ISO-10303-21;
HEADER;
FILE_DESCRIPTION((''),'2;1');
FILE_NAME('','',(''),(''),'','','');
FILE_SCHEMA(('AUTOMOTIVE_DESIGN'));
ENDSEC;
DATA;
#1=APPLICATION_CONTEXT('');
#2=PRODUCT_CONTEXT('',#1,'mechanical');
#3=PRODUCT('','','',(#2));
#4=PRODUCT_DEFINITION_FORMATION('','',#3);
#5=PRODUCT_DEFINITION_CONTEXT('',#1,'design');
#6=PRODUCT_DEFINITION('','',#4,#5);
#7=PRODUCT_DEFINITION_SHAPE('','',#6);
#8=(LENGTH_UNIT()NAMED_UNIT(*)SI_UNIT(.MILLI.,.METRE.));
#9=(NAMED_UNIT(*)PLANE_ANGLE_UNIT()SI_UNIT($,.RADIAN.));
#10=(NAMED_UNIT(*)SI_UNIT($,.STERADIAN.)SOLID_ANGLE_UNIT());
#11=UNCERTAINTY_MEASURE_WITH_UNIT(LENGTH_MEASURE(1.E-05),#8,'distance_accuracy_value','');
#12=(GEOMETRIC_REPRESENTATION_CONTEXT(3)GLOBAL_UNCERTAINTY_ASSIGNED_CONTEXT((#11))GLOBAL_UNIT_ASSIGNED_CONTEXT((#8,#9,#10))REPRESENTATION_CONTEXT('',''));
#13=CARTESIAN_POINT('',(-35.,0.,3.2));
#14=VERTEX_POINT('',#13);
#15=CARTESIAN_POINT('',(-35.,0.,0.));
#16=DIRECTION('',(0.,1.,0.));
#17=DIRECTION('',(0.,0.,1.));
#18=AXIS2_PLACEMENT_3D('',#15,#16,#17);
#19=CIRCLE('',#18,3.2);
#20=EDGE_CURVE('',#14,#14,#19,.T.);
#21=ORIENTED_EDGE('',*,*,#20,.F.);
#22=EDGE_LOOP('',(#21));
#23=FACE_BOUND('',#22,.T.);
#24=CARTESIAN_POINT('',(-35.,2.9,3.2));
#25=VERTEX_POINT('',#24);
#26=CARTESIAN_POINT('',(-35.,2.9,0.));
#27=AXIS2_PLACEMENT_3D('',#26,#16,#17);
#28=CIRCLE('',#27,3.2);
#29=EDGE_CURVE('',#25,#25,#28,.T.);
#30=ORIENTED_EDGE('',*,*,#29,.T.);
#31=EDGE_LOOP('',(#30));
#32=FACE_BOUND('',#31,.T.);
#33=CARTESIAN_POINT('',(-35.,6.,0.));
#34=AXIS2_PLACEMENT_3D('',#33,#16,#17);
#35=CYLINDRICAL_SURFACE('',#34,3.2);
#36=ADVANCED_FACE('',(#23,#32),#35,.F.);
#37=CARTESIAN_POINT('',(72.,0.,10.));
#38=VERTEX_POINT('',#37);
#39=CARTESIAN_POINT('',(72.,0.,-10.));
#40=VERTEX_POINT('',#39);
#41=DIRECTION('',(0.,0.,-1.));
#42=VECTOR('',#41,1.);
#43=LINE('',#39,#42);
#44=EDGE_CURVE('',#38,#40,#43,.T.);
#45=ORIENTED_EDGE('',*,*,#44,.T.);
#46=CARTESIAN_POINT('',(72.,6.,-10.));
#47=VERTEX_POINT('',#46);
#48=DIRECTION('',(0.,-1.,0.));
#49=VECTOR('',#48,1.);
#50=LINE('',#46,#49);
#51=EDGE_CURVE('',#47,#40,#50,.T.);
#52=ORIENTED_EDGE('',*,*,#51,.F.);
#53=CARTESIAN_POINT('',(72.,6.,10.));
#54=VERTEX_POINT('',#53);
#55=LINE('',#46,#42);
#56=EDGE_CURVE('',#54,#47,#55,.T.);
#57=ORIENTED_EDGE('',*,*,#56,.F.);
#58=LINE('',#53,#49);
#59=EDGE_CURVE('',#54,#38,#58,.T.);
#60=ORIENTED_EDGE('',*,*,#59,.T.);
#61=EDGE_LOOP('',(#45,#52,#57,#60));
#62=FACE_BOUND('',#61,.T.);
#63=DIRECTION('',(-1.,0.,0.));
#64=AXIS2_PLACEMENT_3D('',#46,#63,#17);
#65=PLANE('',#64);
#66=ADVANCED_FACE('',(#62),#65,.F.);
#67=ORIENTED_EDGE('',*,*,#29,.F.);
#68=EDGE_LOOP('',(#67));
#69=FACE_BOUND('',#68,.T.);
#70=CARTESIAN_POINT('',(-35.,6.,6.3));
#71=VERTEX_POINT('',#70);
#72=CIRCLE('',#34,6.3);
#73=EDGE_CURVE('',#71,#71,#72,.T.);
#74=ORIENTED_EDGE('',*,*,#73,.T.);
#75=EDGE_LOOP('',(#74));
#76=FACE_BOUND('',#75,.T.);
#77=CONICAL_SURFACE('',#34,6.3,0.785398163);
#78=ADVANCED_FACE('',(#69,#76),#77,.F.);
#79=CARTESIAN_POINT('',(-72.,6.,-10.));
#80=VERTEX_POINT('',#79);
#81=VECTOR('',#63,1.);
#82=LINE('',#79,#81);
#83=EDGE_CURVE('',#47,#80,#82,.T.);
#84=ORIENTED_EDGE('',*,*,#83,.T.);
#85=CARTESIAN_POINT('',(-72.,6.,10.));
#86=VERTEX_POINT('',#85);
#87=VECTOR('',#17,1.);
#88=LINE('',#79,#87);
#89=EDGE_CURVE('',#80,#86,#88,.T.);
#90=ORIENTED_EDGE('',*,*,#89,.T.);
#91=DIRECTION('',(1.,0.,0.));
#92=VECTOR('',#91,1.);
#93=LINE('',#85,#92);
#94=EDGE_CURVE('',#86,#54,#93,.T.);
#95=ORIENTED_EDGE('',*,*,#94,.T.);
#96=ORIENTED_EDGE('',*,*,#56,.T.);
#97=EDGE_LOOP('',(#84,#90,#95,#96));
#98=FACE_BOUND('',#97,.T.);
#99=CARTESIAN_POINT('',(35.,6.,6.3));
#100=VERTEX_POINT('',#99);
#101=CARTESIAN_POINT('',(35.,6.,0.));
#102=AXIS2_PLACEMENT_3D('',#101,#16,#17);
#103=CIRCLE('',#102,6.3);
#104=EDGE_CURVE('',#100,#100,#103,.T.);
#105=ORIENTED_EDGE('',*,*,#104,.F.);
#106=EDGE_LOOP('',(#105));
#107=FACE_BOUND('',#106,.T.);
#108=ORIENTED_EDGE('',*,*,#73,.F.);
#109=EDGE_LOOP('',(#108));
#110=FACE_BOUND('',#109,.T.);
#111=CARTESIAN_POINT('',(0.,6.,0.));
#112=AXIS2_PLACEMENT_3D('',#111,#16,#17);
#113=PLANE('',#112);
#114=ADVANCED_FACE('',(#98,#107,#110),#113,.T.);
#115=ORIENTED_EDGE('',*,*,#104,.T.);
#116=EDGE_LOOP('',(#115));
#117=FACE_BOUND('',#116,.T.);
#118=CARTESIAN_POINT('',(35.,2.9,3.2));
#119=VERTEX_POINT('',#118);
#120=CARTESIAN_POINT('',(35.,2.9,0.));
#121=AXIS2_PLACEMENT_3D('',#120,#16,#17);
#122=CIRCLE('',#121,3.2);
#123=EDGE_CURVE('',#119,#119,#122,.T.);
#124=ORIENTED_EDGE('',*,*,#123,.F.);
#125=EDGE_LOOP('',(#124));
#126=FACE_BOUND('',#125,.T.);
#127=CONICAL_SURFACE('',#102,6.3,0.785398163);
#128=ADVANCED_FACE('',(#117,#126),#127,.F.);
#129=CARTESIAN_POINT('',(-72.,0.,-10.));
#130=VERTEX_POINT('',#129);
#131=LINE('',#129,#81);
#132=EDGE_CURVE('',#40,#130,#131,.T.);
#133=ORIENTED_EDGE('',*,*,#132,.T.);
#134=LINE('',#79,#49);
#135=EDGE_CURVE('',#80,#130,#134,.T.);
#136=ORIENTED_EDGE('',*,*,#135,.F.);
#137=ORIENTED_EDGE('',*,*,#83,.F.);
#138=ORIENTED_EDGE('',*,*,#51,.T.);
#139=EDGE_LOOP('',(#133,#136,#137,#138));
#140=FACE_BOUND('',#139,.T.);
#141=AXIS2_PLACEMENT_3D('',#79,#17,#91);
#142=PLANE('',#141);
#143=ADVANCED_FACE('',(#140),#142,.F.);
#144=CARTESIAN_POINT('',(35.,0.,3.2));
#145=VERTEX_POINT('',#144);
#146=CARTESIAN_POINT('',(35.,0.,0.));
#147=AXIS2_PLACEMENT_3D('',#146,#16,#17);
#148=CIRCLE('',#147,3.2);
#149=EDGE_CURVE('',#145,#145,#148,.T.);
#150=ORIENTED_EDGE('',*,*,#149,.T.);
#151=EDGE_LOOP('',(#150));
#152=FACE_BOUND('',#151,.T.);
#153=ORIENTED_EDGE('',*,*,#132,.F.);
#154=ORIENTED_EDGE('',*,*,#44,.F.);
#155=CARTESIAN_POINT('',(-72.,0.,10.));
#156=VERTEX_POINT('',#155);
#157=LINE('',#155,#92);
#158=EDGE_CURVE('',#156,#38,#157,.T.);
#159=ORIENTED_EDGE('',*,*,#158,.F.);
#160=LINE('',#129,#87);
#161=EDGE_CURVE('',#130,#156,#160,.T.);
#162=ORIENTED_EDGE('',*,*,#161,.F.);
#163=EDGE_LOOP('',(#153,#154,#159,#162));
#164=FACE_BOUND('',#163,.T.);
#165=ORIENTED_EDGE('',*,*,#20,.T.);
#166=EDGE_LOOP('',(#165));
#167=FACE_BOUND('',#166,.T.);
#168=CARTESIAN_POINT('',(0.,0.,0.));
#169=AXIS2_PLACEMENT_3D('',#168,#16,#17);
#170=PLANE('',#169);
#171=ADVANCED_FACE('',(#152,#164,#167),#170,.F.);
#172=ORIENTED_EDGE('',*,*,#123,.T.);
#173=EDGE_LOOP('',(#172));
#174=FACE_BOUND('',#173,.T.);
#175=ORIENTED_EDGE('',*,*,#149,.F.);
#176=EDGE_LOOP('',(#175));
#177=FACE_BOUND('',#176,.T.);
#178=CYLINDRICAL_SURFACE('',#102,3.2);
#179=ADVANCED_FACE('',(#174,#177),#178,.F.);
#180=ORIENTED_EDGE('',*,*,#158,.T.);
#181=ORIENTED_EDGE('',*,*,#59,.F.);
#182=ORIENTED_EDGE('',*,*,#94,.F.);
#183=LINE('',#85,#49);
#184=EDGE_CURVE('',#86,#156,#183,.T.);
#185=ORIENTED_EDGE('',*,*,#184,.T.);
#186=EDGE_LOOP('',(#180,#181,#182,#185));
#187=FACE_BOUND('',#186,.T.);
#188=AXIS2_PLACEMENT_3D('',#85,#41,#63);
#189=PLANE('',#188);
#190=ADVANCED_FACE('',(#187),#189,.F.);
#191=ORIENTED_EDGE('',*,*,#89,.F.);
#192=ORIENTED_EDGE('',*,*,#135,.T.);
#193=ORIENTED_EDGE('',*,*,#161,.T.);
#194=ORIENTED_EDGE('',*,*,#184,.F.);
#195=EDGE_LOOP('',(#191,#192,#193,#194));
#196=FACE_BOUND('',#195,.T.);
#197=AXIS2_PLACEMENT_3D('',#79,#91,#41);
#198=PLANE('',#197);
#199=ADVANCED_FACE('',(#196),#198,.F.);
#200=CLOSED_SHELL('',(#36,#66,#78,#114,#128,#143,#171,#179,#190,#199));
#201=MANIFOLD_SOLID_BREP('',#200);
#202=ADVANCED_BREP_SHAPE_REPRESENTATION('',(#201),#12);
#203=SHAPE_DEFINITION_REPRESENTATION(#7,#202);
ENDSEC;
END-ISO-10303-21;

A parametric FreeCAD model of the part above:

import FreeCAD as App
import Part
import Sketcher
from FreeCAD import Vector
Q = App.Units.Quantity

doc = App.newDocument("Part")
params = doc.addObject("Spreadsheet::Sheet", "Params")
for row, (alias, value) in enumerate([
    ("sketch1_width", "144 mm"),
    ("sketch1_height", "20 mm"),
    ("pad1_length", "6 mm"),
    ("sketch2_width", "6 mm"),
    ("sketch2_width2", "2.9 mm"),
    ("sketch2_height", "6.3 mm"),
    ("groove_angle", "360 deg"),
    ("linearpattern_pitch", "70 mm"),
], start=1):
    params.set(f"A{row}", alias)
    params.set(f"B{row}", "=" + value)
    params.setAlias(f"B{row}", alias)

body = doc.addObject("PartDesign::Body", "Body")

sketch1 = doc.addObject("Sketcher::SketchObject", "Sketch")
body.addObject(sketch1)
sketch1.AttachmentSupport = (doc.XZ_Plane, [""])
sketch1.MapMode = "FlatFace"
sketch1.addGeometry([
    Part.LineSegment(Vector(-72, -10, 0), Vector(-72, 10, 0)),
    Part.LineSegment(Vector(-72, 10, 0), Vector(72, 10, 0)),
    Part.LineSegment(Vector(72, 10, 0), Vector(72, -10, 0)),
    Part.LineSegment(Vector(72, -10, 0), Vector(-72, -10, 0)),
], False)
sketch1.addConstraint([
    Sketcher.Constraint("Coincident", 0, 2, 1, 1),
    Sketcher.Constraint("Coincident", 1, 2, 2, 1),
    Sketcher.Constraint("Coincident", 2, 2, 3, 1),
    Sketcher.Constraint("Coincident", 3, 2, 0, 1),
    Sketcher.Constraint("Vertical", 0),
    Sketcher.Constraint("Horizontal", 1),
    Sketcher.Constraint("Vertical", 2),
    Sketcher.Constraint("Horizontal", 3),
    Sketcher.Constraint("Symmetric", 0, 2, 2, 2, -1, 1),
    Sketcher.Constraint("DistanceX", 1, 1, 1, 2, 144.0),
    Sketcher.Constraint("DistanceY", 0, 1, 0, 2, 20.0),
])
sketch1.setExpression("Constraints[9]", "Params.sketch1_width")
sketch1.setExpression("Constraints[10]", "Params.sketch1_height")
pad1 = doc.addObject("PartDesign::Pad", "Pad")
body.addObject(pad1)
pad1.Profile = sketch1
pad1.setExpression("Length", "Params.pad1_length")
pad1.Reversed = True

sketch2 = doc.addObject("Sketcher::SketchObject", "Sketch001")
body.addObject(sketch2)
sketch2.AttachmentSupport = (doc.YZ_Plane, [""])
sketch2.MapMode = "FlatFace"
sketch2.AttachmentOffset = App.Placement(Vector(0, 0, -35), App.Rotation())
sketch2.addGeometry([
    Part.LineSegment(Vector(0, 0, 0), Vector(6, 0, 0)),
    Part.LineSegment(Vector(6, 0, 0), Vector(6, 6.3, 0)),
    Part.LineSegment(Vector(6, 6.3, 0), Vector(2.9, 3.2, 0)),
    Part.LineSegment(Vector(2.9, 3.2, 0), Vector(0, 3.2, 0)),
    Part.LineSegment(Vector(0, 3.2, 0), Vector(0, 0, 0)),
], False)
sketch2.addConstraint([
    Sketcher.Constraint("Coincident", 0, 2, 1, 1),
    Sketcher.Constraint("Coincident", 1, 2, 2, 1),
    Sketcher.Constraint("Coincident", 2, 2, 3, 1),
    Sketcher.Constraint("Coincident", 3, 2, 4, 1),
    Sketcher.Constraint("Coincident", 4, 2, 0, 1),
    Sketcher.Constraint("Horizontal", 0),
    Sketcher.Constraint("Vertical", 1),
    Sketcher.Constraint("Horizontal", 3),
    Sketcher.Constraint("Vertical", 4),
    Sketcher.Constraint("Coincident", 4, 2, -1, 1),
    Sketcher.Constraint("DistanceX", 0, 1, 0, 2, 6.0),
    Sketcher.Constraint("Angle", 2, Q("-135 deg")),
    Sketcher.Constraint("DistanceX", 3, 2, 3, 1, 2.9),
    Sketcher.Constraint("DistanceY", 1, 1, 1, 2, 6.3),
])
sketch2.setExpression("Constraints[10]", "Params.sketch2_width")
sketch2.setExpression("Constraints[12]", "Params.sketch2_width2")
sketch2.setExpression("Constraints[13]", "Params.sketch2_height")
groove = doc.addObject("PartDesign::Groove", "Groove")
body.addObject(groove)
groove.Profile = sketch2
groove.ReferenceAxis = (sketch2, ["H_Axis"])
groove.setExpression("Angle", "Params.groove_angle")
doc.recompute()

linearpattern = doc.addObject("PartDesign::LinearPattern", "LinearPattern")
body.addObject(linearpattern)
linearpattern.Originals = [groove]
linearpattern.Direction = (doc.X_Axis, [""])
linearpattern.Mode = "offset"
linearpattern.setExpression("Offset", "Params.linearpattern_pitch")
linearpattern.Occurrences = 2
body.Tip = linearpattern

doc.recompute()
